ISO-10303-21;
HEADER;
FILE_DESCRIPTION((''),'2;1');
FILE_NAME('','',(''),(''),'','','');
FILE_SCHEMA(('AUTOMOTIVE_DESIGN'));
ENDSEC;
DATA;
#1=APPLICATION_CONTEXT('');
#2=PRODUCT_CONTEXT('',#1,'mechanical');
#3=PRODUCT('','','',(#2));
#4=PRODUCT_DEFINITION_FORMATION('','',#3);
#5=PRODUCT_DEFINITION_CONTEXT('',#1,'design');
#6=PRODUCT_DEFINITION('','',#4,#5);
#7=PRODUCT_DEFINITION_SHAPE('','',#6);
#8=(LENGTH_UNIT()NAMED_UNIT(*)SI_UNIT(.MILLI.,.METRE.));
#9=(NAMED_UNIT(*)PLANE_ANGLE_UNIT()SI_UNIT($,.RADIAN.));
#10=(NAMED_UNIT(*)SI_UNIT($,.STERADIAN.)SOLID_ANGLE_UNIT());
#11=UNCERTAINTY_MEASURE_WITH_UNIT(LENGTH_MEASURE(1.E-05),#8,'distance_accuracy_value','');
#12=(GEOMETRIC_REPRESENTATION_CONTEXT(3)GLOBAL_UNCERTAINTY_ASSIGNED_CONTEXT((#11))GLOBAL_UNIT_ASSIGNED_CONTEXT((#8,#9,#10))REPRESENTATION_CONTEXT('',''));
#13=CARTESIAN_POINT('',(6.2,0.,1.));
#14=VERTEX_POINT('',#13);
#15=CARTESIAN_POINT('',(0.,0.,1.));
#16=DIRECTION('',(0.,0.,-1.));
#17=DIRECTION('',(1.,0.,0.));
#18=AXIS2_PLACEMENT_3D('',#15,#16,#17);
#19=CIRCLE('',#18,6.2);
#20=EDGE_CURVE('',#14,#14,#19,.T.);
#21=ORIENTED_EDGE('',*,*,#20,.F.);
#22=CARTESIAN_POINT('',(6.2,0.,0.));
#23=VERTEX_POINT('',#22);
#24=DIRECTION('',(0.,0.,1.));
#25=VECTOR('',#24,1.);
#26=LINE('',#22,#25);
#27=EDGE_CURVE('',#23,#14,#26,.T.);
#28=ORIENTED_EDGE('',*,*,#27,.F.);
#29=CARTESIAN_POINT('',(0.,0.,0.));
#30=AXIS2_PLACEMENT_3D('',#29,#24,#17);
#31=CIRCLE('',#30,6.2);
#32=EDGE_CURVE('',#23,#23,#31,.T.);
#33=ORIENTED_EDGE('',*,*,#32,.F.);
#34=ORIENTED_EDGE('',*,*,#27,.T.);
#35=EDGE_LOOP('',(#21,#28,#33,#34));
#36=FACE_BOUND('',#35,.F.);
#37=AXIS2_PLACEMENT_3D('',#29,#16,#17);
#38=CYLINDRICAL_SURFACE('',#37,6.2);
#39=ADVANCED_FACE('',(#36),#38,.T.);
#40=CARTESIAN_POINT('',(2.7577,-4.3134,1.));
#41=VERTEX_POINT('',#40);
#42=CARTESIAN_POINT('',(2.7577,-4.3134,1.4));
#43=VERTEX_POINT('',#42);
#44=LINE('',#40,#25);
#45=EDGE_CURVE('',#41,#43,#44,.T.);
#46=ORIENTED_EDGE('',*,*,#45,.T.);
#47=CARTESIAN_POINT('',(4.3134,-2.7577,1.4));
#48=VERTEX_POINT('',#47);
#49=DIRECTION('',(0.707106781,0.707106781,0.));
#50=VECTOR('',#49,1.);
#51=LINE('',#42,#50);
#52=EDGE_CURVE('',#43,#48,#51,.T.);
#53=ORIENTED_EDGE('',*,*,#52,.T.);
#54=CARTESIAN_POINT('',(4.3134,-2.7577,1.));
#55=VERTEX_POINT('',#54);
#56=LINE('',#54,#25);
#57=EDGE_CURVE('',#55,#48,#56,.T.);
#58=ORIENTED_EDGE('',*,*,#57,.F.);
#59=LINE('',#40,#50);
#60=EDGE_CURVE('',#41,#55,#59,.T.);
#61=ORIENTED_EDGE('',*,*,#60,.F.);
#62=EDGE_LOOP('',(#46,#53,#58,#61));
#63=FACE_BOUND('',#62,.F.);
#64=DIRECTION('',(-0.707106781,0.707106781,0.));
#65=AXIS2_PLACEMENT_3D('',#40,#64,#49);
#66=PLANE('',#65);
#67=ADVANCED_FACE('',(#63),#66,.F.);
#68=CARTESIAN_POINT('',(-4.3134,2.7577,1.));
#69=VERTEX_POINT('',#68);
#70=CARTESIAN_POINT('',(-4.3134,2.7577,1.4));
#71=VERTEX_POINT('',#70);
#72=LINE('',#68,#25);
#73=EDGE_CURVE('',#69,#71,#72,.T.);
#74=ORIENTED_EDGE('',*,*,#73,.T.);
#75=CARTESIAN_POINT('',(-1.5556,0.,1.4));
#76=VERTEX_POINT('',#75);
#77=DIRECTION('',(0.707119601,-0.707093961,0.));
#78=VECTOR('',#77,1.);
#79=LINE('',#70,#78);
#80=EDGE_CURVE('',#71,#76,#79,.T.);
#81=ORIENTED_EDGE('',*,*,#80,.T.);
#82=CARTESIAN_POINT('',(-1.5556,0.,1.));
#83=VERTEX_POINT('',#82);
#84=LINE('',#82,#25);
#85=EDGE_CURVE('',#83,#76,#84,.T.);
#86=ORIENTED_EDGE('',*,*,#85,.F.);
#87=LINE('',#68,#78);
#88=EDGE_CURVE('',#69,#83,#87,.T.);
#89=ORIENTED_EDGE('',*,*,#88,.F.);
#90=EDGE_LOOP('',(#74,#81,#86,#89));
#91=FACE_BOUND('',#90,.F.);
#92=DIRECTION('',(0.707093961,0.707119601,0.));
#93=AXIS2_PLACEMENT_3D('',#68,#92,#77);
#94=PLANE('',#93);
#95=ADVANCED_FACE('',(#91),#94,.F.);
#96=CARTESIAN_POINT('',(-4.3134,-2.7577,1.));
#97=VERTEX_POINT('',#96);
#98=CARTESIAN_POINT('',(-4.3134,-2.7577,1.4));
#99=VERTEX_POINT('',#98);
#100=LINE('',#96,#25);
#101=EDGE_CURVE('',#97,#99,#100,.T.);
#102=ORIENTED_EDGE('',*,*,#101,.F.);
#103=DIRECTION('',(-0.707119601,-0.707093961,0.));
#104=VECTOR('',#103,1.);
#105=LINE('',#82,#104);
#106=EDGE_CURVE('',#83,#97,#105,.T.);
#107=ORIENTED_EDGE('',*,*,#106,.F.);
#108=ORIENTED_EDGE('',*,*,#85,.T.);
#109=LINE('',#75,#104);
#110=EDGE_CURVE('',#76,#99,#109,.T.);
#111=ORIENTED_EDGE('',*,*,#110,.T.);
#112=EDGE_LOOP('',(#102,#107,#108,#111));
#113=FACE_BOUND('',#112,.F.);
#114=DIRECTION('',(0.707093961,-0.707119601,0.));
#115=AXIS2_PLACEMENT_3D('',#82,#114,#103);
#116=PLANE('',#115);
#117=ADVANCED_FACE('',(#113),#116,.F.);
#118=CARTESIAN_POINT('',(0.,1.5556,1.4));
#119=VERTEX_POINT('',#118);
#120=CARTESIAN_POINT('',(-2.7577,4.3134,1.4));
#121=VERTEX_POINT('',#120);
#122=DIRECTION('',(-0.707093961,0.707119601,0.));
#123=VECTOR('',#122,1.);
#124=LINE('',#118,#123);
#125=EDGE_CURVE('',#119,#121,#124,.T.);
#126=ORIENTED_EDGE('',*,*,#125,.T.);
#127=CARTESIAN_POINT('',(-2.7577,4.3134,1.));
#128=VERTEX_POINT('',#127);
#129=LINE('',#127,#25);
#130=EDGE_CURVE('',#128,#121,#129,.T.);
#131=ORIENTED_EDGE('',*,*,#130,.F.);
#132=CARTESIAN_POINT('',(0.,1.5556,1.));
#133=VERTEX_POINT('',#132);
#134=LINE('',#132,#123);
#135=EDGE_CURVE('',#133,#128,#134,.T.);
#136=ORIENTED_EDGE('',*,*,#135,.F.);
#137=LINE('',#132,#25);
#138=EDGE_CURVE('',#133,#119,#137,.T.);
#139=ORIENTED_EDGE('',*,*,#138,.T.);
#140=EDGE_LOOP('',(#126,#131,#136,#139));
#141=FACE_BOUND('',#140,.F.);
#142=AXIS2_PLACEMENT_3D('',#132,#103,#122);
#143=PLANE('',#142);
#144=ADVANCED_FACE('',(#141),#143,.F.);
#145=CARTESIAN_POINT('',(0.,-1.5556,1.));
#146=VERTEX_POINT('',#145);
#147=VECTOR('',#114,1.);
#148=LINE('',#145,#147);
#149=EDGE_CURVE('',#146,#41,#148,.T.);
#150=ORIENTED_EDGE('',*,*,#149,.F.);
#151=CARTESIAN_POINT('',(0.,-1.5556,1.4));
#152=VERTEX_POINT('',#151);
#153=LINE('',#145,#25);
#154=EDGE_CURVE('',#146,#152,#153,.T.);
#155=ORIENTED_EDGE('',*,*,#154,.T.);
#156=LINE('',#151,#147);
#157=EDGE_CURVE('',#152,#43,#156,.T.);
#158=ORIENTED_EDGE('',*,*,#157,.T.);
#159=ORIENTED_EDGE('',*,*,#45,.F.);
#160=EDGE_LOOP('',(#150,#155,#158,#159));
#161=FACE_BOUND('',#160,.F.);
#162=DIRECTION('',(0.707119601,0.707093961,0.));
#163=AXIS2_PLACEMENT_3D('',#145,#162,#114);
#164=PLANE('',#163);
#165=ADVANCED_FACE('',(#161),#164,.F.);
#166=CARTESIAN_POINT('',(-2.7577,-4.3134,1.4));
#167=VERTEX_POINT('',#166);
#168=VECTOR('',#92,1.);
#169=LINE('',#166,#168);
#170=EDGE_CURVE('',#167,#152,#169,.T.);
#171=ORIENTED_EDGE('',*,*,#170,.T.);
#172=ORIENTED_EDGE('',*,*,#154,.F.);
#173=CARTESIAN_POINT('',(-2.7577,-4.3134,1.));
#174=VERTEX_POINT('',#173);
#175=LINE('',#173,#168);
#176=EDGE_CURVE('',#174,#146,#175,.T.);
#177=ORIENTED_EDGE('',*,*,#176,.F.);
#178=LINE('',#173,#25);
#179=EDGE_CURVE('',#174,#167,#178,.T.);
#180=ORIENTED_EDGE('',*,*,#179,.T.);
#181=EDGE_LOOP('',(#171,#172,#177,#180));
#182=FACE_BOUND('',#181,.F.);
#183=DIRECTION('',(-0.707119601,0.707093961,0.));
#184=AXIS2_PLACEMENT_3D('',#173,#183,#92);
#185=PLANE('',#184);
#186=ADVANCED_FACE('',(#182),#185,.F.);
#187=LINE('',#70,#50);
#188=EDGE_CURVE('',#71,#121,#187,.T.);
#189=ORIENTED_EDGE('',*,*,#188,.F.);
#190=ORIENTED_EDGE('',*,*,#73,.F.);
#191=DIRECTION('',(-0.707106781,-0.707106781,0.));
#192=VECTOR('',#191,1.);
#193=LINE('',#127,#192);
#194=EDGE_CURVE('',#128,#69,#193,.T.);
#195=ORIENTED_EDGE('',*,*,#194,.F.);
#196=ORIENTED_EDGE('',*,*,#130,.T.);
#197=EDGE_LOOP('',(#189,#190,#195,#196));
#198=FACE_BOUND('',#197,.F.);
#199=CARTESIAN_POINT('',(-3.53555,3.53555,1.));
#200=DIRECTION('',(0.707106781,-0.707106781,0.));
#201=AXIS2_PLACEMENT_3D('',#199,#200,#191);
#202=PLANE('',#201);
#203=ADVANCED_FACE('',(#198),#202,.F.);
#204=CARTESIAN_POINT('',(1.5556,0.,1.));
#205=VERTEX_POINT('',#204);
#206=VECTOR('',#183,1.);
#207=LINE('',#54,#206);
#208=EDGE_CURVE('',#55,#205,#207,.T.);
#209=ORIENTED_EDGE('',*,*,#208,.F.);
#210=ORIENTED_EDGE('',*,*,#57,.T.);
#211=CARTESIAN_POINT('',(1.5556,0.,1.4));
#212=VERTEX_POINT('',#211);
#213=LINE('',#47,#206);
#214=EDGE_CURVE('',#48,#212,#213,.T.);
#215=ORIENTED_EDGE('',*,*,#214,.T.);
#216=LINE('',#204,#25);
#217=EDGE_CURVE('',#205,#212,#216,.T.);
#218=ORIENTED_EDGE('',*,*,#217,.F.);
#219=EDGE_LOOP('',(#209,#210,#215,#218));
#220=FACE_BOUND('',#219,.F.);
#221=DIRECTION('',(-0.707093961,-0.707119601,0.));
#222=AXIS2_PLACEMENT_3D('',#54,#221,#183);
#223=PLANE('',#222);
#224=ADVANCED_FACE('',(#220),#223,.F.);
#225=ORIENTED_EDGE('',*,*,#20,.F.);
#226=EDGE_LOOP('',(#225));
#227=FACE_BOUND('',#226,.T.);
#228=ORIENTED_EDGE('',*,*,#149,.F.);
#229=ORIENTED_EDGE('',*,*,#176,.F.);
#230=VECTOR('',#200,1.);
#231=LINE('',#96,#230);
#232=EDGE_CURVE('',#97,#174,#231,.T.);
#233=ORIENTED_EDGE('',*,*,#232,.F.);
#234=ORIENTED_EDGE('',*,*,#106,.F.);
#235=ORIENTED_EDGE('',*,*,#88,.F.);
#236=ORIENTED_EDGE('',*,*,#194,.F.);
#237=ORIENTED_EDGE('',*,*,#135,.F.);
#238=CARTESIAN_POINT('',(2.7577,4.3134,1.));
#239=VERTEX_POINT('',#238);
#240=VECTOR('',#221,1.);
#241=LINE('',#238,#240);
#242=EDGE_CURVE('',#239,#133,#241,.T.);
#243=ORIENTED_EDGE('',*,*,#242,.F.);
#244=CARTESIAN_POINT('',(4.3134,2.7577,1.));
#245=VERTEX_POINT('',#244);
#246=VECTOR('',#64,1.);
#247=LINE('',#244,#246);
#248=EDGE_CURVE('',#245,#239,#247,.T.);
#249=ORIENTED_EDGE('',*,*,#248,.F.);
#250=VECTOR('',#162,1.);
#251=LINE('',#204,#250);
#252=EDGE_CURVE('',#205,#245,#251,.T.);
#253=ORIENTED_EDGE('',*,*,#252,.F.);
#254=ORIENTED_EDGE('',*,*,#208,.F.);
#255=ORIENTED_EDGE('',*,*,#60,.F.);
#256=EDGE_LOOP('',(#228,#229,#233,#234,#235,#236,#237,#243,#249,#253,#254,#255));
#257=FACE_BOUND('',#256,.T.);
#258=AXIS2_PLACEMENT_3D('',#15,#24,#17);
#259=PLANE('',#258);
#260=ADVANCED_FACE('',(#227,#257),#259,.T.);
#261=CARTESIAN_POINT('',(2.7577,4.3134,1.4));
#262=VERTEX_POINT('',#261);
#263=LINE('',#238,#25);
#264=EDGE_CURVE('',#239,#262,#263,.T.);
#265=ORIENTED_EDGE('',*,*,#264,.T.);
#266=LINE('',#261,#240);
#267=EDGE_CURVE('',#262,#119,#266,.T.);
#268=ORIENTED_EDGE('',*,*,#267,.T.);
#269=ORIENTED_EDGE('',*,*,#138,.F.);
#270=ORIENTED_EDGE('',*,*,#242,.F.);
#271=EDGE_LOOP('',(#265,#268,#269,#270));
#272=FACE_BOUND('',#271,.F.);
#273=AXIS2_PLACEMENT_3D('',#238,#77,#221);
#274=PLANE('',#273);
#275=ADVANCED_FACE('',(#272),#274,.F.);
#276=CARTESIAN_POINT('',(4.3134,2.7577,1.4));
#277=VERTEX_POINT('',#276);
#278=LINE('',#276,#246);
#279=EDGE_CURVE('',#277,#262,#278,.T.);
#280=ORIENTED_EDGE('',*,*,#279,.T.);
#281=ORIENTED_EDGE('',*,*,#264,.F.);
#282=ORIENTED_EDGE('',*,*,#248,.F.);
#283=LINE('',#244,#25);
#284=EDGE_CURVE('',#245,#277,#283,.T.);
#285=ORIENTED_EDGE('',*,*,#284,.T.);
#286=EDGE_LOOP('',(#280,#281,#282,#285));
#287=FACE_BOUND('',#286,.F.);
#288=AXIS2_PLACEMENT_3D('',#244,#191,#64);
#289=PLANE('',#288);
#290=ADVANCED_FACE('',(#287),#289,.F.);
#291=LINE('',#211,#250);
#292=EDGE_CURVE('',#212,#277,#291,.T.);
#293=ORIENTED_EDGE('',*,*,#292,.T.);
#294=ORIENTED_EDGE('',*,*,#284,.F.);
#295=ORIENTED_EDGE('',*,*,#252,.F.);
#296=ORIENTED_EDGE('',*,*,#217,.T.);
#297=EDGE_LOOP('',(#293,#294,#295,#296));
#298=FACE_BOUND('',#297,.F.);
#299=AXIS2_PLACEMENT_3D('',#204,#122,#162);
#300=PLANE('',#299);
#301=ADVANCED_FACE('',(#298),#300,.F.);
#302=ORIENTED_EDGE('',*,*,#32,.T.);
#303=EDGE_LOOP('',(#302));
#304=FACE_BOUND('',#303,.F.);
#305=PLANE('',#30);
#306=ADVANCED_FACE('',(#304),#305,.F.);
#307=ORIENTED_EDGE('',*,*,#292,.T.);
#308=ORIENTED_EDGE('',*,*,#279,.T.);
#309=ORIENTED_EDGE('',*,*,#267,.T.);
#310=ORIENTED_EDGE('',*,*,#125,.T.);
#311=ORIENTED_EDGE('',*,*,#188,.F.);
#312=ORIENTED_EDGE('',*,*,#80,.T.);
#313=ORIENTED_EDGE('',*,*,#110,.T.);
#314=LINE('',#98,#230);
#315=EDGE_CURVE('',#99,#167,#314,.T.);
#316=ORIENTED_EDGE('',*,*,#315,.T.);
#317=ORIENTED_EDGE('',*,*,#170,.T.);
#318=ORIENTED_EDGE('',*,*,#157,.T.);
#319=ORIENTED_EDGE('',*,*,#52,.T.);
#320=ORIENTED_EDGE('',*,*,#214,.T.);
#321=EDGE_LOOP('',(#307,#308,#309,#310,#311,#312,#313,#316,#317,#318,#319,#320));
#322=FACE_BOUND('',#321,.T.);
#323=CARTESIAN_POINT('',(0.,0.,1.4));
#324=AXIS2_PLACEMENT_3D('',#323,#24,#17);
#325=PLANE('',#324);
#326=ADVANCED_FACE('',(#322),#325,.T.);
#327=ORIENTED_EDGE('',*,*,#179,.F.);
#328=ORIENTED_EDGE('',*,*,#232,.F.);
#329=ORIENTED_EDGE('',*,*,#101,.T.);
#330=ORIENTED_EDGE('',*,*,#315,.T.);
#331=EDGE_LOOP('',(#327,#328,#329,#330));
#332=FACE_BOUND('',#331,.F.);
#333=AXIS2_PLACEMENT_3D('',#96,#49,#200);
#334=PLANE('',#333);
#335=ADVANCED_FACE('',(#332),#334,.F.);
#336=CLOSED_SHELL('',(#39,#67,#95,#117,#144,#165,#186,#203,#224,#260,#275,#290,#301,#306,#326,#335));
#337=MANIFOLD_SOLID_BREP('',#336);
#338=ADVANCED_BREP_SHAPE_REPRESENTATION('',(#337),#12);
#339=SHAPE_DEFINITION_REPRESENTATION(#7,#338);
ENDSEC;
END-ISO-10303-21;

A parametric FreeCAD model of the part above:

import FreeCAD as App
import Part
import Sketcher
from FreeCAD import Vector
Q = App.Units.Quantity

doc = App.newDocument("Part")
body = doc.addObject("PartDesign::Body", "Body")

# Sketch on XY plane
sketch1 = doc.addObject("Sketcher::SketchObject", "Sketch")
body.addObject(sketch1)
sketch1.AttachmentSupport = (doc.XY_Plane, [""])
sketch1.MapMode = "FlatFace"
sketch1.addGeometry(Part.Circle(Vector(0, 0, 0), Vector(0, 0, 1), 6.2), False)
sketch1.addConstraint([
    Sketcher.Constraint("Coincident", 0, 3, -1, 1),
    Sketcher.Constraint("Diameter", 0, Q("12.4 mm")),
])
pad1 = doc.addObject("PartDesign::Pad", "Pad")
body.addObject(pad1)
pad1.Profile = sketch1
pad1.Length = 1

# Sketch on XY plane
sketch2 = doc.addObject("Sketcher::SketchObject", "Sketch001")
body.addObject(sketch2)
sketch2.AttachmentSupport = (doc.XY_Plane, [""])
sketch2.MapMode = "FlatFace"
sketch2.AttachmentOffset = App.Placement(Vector(0, 0, 1), App.Rotation())
sketch2.addGeometry([
    Part.LineSegment(Vector(-4.3134, 2.7577, 0), Vector(-1.5556, 0, 0)),  # 0
    Part.LineSegment(Vector(-1.5556, 0, 0), Vector(-4.3134, -2.7577, 0)),  # 1
    Part.LineSegment(Vector(-4.3134, -2.7577, 0), Vector(-2.7577, -4.3134, 0)),  # 2
    Part.LineSegment(Vector(-2.7577, -4.3134, 0), Vector(0, -1.5556, 0)),  # 3
    Part.LineSegment(Vector(0, -1.5556, 0), Vector(2.7577, -4.3134, 0)),  # 4
    Part.LineSegment(Vector(2.7577, -4.3134, 0), Vector(4.3134, -2.7577, 0)),  # 5
    Part.LineSegment(Vector(4.3134, -2.7577, 0), Vector(1.5556, 0, 0)),  # 6
    Part.LineSegment(Vector(1.5556, 0, 0), Vector(4.3134, 2.7577, 0)),  # 7
    Part.LineSegment(Vector(4.3134, 2.7577, 0), Vector(2.7577, 4.3134, 0)),  # 8
    Part.LineSegment(Vector(2.7577, 4.3134, 0), Vector(0, 1.5556, 0)),  # 9
    Part.LineSegment(Vector(0, 1.5556, 0), Vector(-2.7577, 4.3134, 0)),  # 10
    Part.LineSegment(Vector(-2.7577, 4.3134, 0), Vector(-4.3134, 2.7577, 0)),  # 11
], False)
sketch2.addConstraint([
    Sketcher.Constraint("Coincident", 0, 2, 1, 1),
    Sketcher.Constraint("Coincident", 1, 2, 2, 1),
    Sketcher.Constraint("Coincident", 2, 2, 3, 1),
    Sketcher.Constraint("Coincident", 3, 2, 4, 1),
    Sketcher.Constraint("Coincident", 4, 2, 5, 1),
    Sketcher.Constraint("Coincident", 5, 2, 6, 1),
    Sketcher.Constraint("Coincident", 6, 2, 7, 1),
    Sketcher.Constraint("Coincident", 7, 2, 8, 1),
    Sketcher.Constraint("Coincident", 8, 2, 9, 1),
    Sketcher.Constraint("Coincident", 9, 2, 10, 1),
    Sketcher.Constraint("Coincident", 10, 2, 11, 1),
    Sketcher.Constraint("Coincident", 11, 2, 0, 1),
    Sketcher.Constraint("Symmetric", 0, 2, 6, 2, -1, 1),
    Sketcher.Constraint("Symmetric", 1, 2, 7, 2, -1, 1),
    Sketcher.Constraint("Symmetric", 2, 2, 8, 2, -1, 1),
    Sketcher.Constraint("Symmetric", 3, 2, 9, 2, -1, 1),
    Sketcher.Constraint("Symmetric", 4, 2, 10, 2, -1, 1),
    Sketcher.Constraint("Symmetric", 5, 2, 11, 2, -1, 1),
    Sketcher.Constraint("Symmetric", 2, 2, 4, 2, -2),
    Sketcher.Constraint("Symmetric", 1, 2, 5, 2, -2),
    Sketcher.Constraint("PointOnObject", 0, 2, -1),
    Sketcher.Constraint("PointOnObject", 3, 2, -2),
    Sketcher.Constraint("Perpendicular", 0, 1),
    Sketcher.Constraint("Perpendicular", 1, 2),
    Sketcher.Constraint("Perpendicular", 2, 3),
    Sketcher.Constraint("Equal", 1, 3),
    Sketcher.Constraint("Distance", 2, Q("2.2 mm")),
    Sketcher.Constraint("Distance", 0, Q("3.9 mm")),
])
pad2 = doc.addObject("PartDesign::Pad", "Pad001")
body.addObject(pad2)
pad2.Profile = sketch2
pad2.Length = 0.4

doc.recompute()
